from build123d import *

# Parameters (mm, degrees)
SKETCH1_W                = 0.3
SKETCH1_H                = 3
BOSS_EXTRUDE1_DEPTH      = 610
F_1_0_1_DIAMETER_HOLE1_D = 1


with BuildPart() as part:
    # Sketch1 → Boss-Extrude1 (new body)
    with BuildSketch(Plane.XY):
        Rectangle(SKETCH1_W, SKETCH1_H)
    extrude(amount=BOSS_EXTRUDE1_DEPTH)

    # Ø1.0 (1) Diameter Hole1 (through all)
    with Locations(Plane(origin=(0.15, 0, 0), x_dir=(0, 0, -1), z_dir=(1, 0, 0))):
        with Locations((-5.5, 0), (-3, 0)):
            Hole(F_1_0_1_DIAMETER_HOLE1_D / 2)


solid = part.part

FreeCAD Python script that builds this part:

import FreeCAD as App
import Part
import Sketcher

V = App.Vector

doc = App.newDocument("Part")
body = doc.addObject("PartDesign::Body", "Body")

sketch1 = doc.addObject("Sketcher::SketchObject", "Sketch")
body.addObject(sketch1)
sketch1.AttachmentSupport = (doc.XY_Plane, [""])
sketch1.MapMode = "FlatFace"
sketch1.addGeometry(Part.LineSegment(V(-0.15, 1.5, 0), V(-0.15, -1.5, 0)), False)
sketch1.addGeometry(Part.LineSegment(V(-0.15, -1.5, 0), V(0.15, -1.5, 0)), False)
sketch1.addGeometry(Part.LineSegment(V(0.15, -1.5, 0), V(0.15, 1.5, 0)), False)
sketch1.addGeometry(Part.LineSegment(V(0.15, 1.5, 0), V(-0.15, 1.5, 0)), False)
sketch1.addConstraint(Sketcher.Constraint("Coincident", 0, 2, 1, 1))
sketch1.addConstraint(Sketcher.Constraint("Coincident", 1, 2, 2, 1))
sketch1.addConstraint(Sketcher.Constraint("Coincident", 2, 2, 3, 1))
sketch1.addConstraint(Sketcher.Constraint("Coincident", 3, 2, 0, 1))
sketch1.addConstraint(Sketcher.Constraint("Vertical", 0))
sketch1.addConstraint(Sketcher.Constraint("Horizontal", 1))
sketch1.addConstraint(Sketcher.Constraint("Vertical", 2))
sketch1.addConstraint(Sketcher.Constraint("Horizontal", 3))
sketch1.addConstraint(Sketcher.Constraint("Symmetric", 0, 2, 2, 2, -1, 1))
sketch1.addConstraint(Sketcher.Constraint("DistanceY", 0, 2, 0, 1, 3.0))
sketch1.addConstraint(Sketcher.Constraint("DistanceX", 1, 1, 1, 2, 0.3))
pad1 = doc.addObject("PartDesign::Pad", "Pad")
body.addObject(pad1)
pad1.Profile = sketch1
pad1.Length = 610

sketch2 = doc.addObject("Sketcher::SketchObject", "Sketch001")
body.addObject(sketch2)
sketch2.AttachmentSupport = (doc.YZ_Plane, [""])
sketch2.MapMode = "FlatFace"
sketch2.AttachmentOffset = App.Placement(V(0, 0, 0.15), App.Rotation())
sketch2.addGeometry(Part.Circle(V(0, 5.5, 0), V(0, 0, 1), 0.5), False)
sketch2.addGeometry(Part.Circle(V(0, 3, 0), V(0, 0, 1), 0.5), False)
sketch2.addConstraint(Sketcher.Constraint("Equal", 0, 1))
sketch2.addConstraint(Sketcher.Constraint("PointOnObject", 0, 3, -2))
sketch2.addConstraint(Sketcher.Constraint("PointOnObject", 1, 3, -2))
sketch2.addConstraint(Sketcher.Constraint("Diameter", 0, 1.0))
sketch2.addConstraint(Sketcher.Constraint("DistanceY", -1, 1, 1, 3, 3.0))
sketch2.addConstraint(Sketcher.Constraint("DistanceY", -1, 1, 0, 3, 5.5))
doc.recompute()
hole = doc.addObject("PartDesign::Hole", "Hole")
body.addObject(hole)
hole.Profile = sketch2
hole.ThreadType = "None"
hole.Diameter = 1
hole.DepthType = "ThroughAll"

doc.recompute()
